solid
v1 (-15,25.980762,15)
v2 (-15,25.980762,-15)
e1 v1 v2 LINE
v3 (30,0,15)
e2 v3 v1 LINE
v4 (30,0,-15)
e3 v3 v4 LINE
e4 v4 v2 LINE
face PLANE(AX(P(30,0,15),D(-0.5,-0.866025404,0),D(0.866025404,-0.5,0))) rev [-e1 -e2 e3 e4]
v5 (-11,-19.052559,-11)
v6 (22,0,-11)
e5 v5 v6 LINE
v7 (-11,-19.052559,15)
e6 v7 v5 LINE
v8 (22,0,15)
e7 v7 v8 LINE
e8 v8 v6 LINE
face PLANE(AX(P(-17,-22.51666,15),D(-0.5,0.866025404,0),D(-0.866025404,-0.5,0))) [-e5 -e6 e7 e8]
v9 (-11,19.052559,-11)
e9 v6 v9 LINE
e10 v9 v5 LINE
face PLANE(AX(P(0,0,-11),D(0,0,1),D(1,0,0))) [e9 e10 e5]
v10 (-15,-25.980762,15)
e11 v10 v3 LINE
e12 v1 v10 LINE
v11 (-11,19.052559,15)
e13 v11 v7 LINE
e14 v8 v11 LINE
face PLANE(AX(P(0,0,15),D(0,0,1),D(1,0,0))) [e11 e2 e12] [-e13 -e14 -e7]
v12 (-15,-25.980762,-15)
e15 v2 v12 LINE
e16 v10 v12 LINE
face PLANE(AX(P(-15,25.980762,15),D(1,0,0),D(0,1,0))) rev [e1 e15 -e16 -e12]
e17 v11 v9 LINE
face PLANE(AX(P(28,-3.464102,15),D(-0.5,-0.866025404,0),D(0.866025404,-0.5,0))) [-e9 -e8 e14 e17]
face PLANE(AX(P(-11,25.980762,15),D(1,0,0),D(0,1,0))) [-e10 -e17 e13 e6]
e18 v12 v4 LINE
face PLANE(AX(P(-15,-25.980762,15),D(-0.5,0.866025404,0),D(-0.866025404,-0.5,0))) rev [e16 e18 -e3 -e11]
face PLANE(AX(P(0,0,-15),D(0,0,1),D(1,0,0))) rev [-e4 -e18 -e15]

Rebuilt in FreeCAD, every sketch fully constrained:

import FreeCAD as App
import Part
import Sketcher
Q = App.Units.Quantity


def faces_at(feature, points):
    """Names of the faces that lie closest to the given points."""
    faces = feature.Shape.Faces
    near = lambda p: min(range(len(faces)), key=lambda i: faces[i].distToShape(Part.Vertex(*p))[0])
    return sorted({f"Face{near(p) + 1}" for p in points})

doc = App.newDocument("Part")
body = doc.addObject("PartDesign::Body", "Body")

# Sketch on XY plane
sketch1 = body.newObject("Sketcher::SketchObject", "Sketch")
sketch1.AttachmentSupport = (doc.getObject("XY_Plane"), [""])
sketch1.MapMode = "FlatFace"
sketch1.addGeometry([
    Part.LineSegment(App.Vector(30, 0, 0), App.Vector(-15, 26, 0)),
    Part.LineSegment(App.Vector(-15, 26, 0), App.Vector(-15, -26, 0)),
    Part.LineSegment(App.Vector(-15, -26, 0), App.Vector(30, 0, 0)),
], False)
sketch1.addConstraint([
    Sketcher.Constraint("Coincident", 0, 2, 1, 1),
    Sketcher.Constraint("Coincident", 1, 2, 2, 1),
    Sketcher.Constraint("Coincident", 2, 2, 0, 1),
    Sketcher.Constraint("Vertical", 1),
    Sketcher.Constraint("PointOnObject", 2, 2, -1),
    Sketcher.Constraint("Equal", 0, 2),
    Sketcher.Constraint("Angle", 0, Q("150 deg")),
    Sketcher.Constraint("DistanceX", 0, 2, -1, 1, 15.0),
    Sketcher.Constraint("DistanceX", -1, 1, 2, 2, 30.0),
])
pad1 = body.newObject("PartDesign::Pad", "Pad")
pad1.Profile = sketch1
pad1.Length = 30
pad1.Midplane = True
doc.recompute()

thickness = body.newObject("PartDesign::Thickness", "Thickness")
thickness.Base = (pad1, faces_at(pad1, [(7.5, 0, 15)]))
thickness.Value = 4
thickness.Reversed = True
thickness.Join = "Intersection"

doc.recompute()
